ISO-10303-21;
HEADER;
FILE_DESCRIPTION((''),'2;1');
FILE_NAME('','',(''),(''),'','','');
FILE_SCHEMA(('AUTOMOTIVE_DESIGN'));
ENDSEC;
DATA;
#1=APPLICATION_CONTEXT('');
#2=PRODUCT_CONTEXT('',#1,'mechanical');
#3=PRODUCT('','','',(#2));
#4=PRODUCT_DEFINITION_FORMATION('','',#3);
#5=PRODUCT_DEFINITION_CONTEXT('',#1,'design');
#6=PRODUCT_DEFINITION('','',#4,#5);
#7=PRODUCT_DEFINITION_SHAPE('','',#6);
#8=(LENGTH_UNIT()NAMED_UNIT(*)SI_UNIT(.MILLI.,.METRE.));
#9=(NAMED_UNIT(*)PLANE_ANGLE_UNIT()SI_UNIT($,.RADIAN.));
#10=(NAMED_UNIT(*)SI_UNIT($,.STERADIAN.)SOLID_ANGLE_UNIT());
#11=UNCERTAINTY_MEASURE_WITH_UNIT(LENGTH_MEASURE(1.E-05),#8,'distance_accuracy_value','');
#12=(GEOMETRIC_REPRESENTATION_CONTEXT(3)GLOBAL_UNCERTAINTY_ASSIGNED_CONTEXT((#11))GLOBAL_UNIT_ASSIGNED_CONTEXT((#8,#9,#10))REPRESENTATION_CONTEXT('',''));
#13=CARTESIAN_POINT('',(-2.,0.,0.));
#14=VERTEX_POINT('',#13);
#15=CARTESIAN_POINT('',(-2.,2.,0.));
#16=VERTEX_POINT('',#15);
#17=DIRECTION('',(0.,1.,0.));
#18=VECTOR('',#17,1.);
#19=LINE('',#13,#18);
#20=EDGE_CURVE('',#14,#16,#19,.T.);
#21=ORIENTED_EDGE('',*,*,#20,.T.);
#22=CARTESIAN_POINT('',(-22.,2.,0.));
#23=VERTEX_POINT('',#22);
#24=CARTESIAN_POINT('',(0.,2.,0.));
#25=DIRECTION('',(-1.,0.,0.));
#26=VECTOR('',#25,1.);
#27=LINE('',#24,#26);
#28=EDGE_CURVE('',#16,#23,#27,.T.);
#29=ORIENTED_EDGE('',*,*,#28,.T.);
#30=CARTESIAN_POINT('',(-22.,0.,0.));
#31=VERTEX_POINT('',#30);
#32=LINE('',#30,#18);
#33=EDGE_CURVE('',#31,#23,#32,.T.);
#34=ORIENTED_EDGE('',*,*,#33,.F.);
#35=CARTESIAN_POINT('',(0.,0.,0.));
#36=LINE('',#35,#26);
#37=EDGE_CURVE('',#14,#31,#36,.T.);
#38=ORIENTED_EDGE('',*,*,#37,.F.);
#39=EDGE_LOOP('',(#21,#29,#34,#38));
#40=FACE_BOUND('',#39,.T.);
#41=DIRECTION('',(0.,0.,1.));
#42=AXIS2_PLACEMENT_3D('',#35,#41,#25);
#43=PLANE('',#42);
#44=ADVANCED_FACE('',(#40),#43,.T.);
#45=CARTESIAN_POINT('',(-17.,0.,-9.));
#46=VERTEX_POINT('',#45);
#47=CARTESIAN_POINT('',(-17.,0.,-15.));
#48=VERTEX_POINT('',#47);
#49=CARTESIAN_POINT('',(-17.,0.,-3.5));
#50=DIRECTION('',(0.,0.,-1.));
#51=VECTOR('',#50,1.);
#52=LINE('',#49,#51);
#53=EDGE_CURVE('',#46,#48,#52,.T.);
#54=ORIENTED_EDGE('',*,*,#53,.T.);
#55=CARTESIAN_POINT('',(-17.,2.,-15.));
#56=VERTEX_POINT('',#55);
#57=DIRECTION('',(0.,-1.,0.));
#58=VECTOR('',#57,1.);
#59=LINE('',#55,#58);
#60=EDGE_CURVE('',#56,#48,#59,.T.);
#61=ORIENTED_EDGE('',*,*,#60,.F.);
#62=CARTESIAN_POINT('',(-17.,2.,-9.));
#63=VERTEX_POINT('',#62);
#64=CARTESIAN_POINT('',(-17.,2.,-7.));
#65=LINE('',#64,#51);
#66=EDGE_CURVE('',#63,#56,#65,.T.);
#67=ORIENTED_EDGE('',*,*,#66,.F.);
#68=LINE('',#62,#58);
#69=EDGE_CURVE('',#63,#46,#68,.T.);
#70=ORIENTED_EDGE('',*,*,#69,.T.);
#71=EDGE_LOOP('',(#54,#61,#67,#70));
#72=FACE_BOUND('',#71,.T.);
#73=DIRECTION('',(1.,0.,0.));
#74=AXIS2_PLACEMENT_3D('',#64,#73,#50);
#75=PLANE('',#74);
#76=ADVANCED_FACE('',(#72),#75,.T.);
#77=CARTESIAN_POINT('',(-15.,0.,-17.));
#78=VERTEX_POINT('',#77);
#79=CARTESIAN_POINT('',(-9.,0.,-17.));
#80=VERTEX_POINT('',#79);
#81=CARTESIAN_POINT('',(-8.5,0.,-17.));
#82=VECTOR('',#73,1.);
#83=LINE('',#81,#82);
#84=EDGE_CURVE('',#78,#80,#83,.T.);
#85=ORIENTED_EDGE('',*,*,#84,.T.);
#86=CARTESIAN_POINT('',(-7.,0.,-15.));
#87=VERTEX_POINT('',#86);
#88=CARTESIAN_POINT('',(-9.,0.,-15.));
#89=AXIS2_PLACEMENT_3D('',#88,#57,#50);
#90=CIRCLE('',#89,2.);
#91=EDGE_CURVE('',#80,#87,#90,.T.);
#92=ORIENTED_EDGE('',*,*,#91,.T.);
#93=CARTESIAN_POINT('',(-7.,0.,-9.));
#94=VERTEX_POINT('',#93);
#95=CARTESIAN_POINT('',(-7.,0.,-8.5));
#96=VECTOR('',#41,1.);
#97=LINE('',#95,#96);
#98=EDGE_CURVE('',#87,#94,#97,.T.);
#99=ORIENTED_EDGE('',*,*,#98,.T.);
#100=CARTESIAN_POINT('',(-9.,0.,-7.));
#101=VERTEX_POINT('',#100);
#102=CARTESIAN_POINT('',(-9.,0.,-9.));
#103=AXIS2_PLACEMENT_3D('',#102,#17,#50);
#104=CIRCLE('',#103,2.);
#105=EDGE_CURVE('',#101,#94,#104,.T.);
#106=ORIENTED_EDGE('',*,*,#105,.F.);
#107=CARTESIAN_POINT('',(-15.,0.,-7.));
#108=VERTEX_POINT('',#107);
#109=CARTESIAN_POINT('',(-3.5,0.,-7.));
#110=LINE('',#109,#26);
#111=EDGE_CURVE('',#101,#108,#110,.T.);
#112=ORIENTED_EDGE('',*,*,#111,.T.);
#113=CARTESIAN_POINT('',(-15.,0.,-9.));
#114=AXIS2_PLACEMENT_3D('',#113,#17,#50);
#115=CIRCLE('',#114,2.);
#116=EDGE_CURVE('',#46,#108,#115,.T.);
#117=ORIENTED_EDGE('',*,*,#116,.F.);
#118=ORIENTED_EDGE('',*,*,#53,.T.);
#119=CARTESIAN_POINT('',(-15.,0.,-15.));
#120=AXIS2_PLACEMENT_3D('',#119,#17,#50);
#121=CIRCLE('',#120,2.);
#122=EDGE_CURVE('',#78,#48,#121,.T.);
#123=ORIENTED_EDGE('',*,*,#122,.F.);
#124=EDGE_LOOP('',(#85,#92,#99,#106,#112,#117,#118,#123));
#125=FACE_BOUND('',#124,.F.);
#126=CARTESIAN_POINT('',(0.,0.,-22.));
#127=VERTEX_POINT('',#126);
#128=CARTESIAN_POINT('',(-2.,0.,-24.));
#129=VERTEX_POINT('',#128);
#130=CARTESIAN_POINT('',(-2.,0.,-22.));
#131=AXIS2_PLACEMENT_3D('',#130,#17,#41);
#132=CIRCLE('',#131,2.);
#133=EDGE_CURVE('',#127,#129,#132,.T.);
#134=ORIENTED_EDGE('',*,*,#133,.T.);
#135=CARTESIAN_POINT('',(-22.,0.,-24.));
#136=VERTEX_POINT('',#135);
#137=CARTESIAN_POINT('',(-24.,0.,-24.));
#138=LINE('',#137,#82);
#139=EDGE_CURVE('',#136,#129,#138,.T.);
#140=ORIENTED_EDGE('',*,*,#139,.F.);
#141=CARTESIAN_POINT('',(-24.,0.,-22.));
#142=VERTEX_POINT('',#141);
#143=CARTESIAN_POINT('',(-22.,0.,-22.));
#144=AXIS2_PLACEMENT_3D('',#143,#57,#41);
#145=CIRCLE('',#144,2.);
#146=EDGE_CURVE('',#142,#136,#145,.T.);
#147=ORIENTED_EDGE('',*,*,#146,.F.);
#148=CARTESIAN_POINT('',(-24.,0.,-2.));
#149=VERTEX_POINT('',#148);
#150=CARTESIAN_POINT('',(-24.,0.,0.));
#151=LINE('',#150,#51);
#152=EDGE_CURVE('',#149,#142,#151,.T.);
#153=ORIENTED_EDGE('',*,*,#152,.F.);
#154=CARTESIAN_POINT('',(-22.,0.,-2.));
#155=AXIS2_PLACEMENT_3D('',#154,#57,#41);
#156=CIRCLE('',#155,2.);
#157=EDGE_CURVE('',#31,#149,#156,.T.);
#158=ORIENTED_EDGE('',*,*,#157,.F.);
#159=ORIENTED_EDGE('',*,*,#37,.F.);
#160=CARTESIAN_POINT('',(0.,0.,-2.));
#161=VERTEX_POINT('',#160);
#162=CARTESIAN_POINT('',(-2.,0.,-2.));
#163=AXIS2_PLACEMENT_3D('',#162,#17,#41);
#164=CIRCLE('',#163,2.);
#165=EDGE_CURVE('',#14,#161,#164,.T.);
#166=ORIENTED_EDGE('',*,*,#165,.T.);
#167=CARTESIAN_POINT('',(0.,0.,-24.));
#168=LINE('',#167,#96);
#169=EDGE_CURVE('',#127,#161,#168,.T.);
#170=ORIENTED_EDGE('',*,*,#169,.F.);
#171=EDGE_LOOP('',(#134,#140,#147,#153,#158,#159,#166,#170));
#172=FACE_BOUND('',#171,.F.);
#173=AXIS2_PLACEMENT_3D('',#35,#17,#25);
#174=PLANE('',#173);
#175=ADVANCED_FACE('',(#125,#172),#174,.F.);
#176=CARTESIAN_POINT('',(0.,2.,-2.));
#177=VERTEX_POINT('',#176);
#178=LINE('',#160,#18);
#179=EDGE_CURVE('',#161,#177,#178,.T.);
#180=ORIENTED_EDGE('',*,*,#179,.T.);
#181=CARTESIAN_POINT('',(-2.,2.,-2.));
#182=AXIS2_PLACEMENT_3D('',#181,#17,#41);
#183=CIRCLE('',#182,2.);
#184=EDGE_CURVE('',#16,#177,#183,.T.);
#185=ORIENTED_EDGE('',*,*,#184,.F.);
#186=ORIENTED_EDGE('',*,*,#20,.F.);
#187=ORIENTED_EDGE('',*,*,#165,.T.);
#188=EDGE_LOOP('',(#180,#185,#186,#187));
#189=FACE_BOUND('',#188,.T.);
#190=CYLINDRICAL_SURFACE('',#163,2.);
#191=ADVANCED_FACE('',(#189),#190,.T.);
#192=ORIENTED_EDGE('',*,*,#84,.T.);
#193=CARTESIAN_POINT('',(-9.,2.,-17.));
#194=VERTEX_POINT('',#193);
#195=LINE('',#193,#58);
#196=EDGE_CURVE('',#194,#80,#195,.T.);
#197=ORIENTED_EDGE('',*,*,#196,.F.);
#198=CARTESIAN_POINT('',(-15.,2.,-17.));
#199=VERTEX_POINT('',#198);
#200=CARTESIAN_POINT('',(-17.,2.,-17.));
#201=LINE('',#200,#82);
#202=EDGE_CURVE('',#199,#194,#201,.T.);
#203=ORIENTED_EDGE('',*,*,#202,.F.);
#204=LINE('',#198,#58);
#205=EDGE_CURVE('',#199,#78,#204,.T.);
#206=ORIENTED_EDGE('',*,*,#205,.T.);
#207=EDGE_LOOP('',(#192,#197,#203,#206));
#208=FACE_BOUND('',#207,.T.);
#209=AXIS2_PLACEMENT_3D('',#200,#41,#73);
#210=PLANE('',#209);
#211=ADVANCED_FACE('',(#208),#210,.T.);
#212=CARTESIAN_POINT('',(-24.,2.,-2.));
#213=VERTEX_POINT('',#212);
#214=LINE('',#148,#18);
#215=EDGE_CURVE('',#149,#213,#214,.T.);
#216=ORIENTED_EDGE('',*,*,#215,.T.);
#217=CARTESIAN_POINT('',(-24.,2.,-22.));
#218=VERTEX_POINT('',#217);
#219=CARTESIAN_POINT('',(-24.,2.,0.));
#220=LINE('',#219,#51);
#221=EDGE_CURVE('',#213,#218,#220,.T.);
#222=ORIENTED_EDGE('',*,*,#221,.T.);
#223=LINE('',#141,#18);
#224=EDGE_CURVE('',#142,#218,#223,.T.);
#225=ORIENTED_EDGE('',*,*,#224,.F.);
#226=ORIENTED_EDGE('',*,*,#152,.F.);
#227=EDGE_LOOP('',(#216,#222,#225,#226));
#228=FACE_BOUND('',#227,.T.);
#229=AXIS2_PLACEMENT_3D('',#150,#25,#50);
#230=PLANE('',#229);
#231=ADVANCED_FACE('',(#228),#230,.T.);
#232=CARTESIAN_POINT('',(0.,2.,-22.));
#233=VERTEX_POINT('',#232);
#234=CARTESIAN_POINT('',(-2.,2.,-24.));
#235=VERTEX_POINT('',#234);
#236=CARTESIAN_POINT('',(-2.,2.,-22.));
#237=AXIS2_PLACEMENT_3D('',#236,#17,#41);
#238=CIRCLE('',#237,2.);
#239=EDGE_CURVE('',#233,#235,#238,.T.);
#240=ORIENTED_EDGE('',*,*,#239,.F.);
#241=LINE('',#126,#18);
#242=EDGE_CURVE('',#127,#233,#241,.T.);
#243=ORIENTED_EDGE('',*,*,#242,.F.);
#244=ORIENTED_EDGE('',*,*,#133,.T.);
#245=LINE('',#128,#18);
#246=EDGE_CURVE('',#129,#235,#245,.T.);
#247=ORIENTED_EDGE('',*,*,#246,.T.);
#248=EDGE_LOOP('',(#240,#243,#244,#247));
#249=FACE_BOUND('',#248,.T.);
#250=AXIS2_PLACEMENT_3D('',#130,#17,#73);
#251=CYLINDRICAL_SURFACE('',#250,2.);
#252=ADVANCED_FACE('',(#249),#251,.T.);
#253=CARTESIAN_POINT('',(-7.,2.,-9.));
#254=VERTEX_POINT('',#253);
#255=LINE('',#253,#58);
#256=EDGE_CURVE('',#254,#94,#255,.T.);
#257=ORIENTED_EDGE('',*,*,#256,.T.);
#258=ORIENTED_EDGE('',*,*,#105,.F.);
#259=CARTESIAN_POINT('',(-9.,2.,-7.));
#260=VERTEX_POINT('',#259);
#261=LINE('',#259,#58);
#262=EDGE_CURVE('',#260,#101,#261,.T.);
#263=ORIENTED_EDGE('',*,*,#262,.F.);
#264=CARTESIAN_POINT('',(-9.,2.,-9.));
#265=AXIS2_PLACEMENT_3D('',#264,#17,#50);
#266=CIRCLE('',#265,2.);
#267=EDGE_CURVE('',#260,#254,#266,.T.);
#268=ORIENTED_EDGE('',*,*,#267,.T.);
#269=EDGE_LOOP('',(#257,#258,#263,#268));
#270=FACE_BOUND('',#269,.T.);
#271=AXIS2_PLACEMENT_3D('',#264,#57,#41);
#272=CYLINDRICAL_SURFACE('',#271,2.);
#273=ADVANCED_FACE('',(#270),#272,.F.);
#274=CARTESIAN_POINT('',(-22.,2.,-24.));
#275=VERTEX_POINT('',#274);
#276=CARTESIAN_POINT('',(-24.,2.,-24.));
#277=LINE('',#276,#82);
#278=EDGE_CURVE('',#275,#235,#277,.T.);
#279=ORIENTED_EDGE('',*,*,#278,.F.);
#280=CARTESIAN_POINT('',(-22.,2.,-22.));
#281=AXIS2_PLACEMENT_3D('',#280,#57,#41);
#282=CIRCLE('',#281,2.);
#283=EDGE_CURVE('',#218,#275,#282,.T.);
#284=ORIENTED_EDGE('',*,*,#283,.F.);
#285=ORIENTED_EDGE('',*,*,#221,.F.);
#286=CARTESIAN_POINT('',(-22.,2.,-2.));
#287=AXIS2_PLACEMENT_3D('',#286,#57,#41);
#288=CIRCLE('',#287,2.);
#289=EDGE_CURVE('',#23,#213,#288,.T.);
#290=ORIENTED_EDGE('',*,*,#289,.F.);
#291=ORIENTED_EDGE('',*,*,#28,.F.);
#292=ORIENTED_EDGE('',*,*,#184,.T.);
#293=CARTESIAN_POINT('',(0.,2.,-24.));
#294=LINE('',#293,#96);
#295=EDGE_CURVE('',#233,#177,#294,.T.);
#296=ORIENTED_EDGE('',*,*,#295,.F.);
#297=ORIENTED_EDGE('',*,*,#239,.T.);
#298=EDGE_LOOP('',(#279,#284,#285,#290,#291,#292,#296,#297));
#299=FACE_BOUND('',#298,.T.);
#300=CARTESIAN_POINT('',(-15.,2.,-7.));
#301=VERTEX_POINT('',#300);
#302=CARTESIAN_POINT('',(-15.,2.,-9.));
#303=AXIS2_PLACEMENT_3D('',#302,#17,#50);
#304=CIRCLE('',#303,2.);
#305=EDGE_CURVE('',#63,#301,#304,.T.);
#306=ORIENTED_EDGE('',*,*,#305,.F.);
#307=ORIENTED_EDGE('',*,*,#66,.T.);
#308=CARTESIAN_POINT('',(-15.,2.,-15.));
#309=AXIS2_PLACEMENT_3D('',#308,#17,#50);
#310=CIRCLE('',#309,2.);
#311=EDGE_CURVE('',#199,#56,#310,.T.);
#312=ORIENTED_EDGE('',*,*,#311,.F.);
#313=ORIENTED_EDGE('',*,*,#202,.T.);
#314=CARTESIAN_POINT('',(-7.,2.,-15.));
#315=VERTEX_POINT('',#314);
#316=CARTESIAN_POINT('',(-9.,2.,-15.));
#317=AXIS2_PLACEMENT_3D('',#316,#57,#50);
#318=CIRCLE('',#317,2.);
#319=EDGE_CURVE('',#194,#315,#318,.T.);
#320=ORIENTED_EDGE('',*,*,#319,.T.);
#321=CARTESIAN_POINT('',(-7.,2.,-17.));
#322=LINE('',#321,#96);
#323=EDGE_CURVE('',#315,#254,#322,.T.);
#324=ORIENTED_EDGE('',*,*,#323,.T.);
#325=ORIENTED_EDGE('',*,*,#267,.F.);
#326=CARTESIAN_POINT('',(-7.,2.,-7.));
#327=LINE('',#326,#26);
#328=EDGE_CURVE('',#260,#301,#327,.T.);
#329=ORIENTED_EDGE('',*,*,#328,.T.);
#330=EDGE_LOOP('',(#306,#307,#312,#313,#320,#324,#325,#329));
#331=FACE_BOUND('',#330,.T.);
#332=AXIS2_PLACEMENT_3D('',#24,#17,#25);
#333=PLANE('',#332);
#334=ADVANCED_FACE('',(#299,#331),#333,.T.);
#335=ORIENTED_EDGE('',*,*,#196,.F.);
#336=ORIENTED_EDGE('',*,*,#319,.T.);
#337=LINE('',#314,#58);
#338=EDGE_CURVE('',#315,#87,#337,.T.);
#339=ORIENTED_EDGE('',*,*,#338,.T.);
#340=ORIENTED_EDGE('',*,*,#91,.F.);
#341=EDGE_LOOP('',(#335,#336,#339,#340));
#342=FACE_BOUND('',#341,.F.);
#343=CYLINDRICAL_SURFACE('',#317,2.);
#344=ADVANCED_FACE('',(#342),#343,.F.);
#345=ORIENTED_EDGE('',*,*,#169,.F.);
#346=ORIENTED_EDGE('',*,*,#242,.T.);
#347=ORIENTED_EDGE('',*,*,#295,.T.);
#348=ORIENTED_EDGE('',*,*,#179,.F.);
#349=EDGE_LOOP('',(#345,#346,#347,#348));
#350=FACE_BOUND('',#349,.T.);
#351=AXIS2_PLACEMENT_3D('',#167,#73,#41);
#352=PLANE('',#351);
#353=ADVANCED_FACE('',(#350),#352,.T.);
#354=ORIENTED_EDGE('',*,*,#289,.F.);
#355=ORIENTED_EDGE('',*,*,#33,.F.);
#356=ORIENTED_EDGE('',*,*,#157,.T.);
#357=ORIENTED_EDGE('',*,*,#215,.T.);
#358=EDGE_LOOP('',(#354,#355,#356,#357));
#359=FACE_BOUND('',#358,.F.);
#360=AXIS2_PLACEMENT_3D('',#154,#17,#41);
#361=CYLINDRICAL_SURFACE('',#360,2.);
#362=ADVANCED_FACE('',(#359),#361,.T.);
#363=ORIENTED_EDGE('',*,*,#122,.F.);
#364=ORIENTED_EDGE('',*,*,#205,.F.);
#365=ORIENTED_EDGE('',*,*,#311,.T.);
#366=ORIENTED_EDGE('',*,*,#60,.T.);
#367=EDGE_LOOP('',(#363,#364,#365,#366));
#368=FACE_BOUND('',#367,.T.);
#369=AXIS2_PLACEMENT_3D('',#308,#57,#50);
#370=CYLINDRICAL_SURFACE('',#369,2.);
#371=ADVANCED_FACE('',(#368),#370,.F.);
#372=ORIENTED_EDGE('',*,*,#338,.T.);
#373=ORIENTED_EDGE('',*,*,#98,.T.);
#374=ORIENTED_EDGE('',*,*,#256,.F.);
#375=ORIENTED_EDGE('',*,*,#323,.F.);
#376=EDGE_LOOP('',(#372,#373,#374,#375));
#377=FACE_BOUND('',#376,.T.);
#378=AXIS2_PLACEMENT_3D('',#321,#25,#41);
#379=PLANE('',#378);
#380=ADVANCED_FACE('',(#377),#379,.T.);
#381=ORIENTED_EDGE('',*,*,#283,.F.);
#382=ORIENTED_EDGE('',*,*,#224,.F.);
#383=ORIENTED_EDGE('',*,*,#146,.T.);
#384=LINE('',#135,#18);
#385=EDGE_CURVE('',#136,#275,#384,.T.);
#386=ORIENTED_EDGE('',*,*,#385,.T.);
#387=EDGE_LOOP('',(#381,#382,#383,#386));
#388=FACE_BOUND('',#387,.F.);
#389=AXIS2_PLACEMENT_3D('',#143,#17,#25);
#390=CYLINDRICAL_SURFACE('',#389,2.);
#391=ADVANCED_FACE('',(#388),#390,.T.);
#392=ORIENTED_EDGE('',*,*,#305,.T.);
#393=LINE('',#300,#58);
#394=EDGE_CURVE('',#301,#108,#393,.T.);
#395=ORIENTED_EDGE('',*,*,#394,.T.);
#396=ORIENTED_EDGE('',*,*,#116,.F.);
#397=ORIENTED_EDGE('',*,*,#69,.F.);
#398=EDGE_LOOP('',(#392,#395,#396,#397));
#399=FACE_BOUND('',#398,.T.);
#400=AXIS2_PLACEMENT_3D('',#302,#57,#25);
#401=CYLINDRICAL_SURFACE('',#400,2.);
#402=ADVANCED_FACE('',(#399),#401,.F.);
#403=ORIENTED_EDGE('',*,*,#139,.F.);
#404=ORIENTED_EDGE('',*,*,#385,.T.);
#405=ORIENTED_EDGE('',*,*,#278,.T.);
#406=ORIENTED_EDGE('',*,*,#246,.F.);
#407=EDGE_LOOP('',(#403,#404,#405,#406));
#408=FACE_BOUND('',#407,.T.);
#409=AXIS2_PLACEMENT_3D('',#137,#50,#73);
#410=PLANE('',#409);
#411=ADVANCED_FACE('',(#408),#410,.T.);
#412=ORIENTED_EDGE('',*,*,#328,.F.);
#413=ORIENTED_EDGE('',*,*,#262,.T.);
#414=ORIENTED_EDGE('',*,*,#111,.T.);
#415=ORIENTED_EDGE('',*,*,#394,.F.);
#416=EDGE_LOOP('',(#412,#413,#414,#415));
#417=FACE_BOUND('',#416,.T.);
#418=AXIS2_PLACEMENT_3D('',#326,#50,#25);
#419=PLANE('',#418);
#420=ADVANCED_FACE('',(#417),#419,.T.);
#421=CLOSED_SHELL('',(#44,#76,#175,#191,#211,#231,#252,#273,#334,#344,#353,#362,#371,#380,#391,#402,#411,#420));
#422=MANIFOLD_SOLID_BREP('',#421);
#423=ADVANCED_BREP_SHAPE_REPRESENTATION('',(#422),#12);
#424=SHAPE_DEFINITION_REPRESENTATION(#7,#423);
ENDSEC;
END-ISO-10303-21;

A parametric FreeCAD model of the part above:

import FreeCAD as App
import Part
import Sketcher


def edges_at(feature, points):
    """Names of the edges that pass closest to the given points."""
    edges = feature.Shape.Edges
    near = lambda p: min(range(len(edges)), key=lambda i: edges[i].distToShape(Part.Vertex(*p))[0])
    return sorted({f"Edge{near(p) + 1}" for p in points})

doc = App.newDocument("Part")
body = doc.addObject("PartDesign::Body", "Body")

# Sketch on XZ plane
sketch1 = body.newObject("Sketcher::SketchObject", "Sketch")
sketch1.AttachmentSupport = (doc.getObject("XZ_Plane"), [""])
sketch1.MapMode = "FlatFace"
sketch1.addGeometry(Part.LineSegment(App.Vector(-24, 0, 0), App.Vector(0, 0, 0)), False)
sketch1.addGeometry(Part.LineSegment(App.Vector(0, 0, 0), App.Vector(0, -24, 0)), False)
sketch1.addGeometry(Part.LineSegment(App.Vector(0, -24, 0), App.Vector(-24, -24, 0)), False)
sketch1.addGeometry(Part.LineSegment(App.Vector(-24, -24, 0), App.Vector(-24, 0, 0)), False)
sketch1.addConstraint(Sketcher.Constraint("Coincident", 0, 2, 1, 1))
sketch1.addConstraint(Sketcher.Constraint("Coincident", 1, 2, 2, 1))
sketch1.addConstraint(Sketcher.Constraint("Coincident", 2, 2, 3, 1))
sketch1.addConstraint(Sketcher.Constraint("Coincident", 3, 2, 0, 1))
sketch1.addConstraint(Sketcher.Constraint("Horizontal", 0))
sketch1.addConstraint(Sketcher.Constraint("Vertical", 1))
sketch1.addConstraint(Sketcher.Constraint("Horizontal", 2))
sketch1.addConstraint(Sketcher.Constraint("Vertical", 3))
sketch1.addConstraint(Sketcher.Constraint("Coincident", 0, 2, -1, 1))
sketch1.addConstraint(Sketcher.Constraint("Equal", 2, 1))
sketch1.addConstraint(Sketcher.Constraint("DistanceX", 0, 1, 0, 2, 24.0))
pad1 = body.newObject("PartDesign::Pad", "Pad")
pad1.Profile = sketch1
pad1.Length = 2
pad1.Reversed = True

# Sketch on XZ plane
sketch2 = body.newObject("Sketcher::SketchObject", "Sketch001")
sketch2.AttachmentSupport = (doc.getObject("XZ_Plane"), [""])
sketch2.MapMode = "FlatFace"
sketch2.AttachmentOffset = App.Placement(App.Vector(0, 0, -2), App.Rotation())
sketch2.addGeometry(Part.LineSegment(App.Vector(-7, -7, 0), App.Vector(-7, -17, 0)), False)
sketch2.addGeometry(Part.LineSegment(App.Vector(-7, -17, 0), App.Vector(-17, -17, 0)), False)
sketch2.addGeometry(Part.LineSegment(App.Vector(-17, -17, 0), App.Vector(-17, -7, 0)), False)
sketch2.addGeometry(Part.LineSegment(App.Vector(-17, -7, 0), App.Vector(-7, -7, 0)), False)
sketch2.addConstraint(Sketcher.Constraint("Coincident", 0, 2, 1, 1))
sketch2.addConstraint(Sketcher.Constraint("Coincident", 1, 2, 2, 1))
sketch2.addConstraint(Sketcher.Constraint("Coincident", 2, 2, 3, 1))
sketch2.addConstraint(Sketcher.Constraint("Coincident", 3, 2, 0, 1))
sketch2.addConstraint(Sketcher.Constraint("Vertical", 0))
sketch2.addConstraint(Sketcher.Constraint("Horizontal", 1))
sketch2.addConstraint(Sketcher.Constraint("Vertical", 2))
sketch2.addConstraint(Sketcher.Constraint("Horizontal", 3))
sketch2.addConstraint(Sketcher.Constraint("Equal", 3, 0))
sketch2.addConstraint(Sketcher.Constraint("DistanceX", 1, 2, 1, 1, 10.0))
sketch2.addConstraint(Sketcher.Constraint("DistanceX", 0, 2, -1, 1, 7.0))
sketch2.addConstraint(Sketcher.Constraint("DistanceY", 0, 2, -1, 1, 17.0))
pocket1 = body.newObject("PartDesign::Pocket", "Pocket")
pocket1.Profile = sketch2
pocket1.Type = "ThroughAll"
pocket1.Reversed = True
doc.recompute()

fillet = body.newObject("PartDesign::Fillet", "Fillet")
fillet.Base = (pocket1, edges_at(pocket1, [
    (0, 1, 0),
    (0, 1, -24),
    (-24, 1, 0),
    (-24, 1, -24),
    (-7, 1, -17),
    (-17, 1, -17),
    (-17, 1, -7),
    (-7, 1, -7),
]))
fillet.Radius = 2

doc.recompute()
